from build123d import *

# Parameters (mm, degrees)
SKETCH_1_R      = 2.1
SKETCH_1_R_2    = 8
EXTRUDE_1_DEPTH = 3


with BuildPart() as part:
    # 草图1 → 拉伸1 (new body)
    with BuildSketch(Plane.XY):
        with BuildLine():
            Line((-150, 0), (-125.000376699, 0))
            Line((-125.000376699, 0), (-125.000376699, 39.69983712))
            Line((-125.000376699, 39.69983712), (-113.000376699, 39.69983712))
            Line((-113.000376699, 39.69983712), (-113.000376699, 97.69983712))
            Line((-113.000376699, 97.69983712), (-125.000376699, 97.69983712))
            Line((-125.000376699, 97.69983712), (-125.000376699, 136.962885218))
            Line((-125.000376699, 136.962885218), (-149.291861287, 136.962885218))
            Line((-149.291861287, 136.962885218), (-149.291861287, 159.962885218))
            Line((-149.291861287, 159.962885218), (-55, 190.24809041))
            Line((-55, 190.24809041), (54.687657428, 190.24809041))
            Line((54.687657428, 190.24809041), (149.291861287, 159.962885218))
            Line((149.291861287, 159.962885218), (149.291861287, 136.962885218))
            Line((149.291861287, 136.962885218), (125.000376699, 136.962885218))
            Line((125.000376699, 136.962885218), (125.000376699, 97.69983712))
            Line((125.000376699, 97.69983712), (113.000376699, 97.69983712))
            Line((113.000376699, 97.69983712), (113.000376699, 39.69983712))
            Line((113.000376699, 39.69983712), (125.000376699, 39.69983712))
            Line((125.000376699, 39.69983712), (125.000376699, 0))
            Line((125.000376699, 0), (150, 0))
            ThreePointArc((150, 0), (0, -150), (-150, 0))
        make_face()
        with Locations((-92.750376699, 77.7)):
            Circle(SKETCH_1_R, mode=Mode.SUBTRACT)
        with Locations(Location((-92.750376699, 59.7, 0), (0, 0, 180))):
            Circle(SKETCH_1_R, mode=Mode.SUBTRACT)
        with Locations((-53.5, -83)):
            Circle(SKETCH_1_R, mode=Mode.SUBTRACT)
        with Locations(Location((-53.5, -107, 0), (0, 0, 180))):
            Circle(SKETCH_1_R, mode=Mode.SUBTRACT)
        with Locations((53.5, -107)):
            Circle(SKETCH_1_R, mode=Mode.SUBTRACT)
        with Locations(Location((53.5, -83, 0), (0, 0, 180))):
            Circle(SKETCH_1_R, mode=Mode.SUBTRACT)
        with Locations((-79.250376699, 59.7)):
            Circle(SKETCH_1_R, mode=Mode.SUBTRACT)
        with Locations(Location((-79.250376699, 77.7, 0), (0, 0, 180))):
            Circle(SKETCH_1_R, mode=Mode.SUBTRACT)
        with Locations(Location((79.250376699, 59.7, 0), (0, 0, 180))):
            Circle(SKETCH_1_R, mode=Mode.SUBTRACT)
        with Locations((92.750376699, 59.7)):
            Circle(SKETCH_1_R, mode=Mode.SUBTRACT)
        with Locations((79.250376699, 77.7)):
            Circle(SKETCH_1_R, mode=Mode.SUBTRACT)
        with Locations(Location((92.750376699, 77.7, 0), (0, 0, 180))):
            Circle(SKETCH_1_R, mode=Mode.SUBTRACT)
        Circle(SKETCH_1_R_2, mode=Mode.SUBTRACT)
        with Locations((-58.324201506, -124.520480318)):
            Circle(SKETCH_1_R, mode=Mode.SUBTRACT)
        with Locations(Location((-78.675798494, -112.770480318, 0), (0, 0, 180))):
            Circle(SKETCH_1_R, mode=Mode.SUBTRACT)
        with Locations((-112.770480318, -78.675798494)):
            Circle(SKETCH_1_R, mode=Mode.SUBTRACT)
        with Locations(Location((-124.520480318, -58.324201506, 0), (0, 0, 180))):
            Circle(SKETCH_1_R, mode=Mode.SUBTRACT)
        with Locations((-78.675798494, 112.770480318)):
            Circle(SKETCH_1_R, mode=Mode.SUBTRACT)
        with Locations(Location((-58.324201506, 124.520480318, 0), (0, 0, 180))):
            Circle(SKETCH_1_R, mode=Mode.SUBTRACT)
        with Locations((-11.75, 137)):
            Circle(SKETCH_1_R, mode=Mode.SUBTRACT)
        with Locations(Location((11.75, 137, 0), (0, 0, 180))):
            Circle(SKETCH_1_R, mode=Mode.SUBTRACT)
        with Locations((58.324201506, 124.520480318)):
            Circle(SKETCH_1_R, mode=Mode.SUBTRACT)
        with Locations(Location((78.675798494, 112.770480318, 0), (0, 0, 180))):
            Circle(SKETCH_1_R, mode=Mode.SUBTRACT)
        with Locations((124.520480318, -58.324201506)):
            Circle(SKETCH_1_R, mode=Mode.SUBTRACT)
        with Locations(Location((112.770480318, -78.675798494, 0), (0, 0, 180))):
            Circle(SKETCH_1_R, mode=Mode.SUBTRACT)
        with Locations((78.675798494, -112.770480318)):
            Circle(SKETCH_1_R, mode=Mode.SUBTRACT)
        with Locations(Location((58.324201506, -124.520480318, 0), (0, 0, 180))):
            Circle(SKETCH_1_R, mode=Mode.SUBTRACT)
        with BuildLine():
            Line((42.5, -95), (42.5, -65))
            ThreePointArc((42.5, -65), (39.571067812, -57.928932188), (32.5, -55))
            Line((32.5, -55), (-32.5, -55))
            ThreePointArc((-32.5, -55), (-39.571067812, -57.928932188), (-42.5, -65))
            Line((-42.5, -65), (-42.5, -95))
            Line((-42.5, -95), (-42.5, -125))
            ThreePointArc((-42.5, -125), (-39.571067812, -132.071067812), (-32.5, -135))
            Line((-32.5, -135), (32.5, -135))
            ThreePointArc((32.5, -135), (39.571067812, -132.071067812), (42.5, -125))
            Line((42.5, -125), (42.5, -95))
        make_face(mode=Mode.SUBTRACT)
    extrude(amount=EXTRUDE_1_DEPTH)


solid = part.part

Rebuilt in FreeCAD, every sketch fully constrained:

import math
import FreeCAD as App
import Part
import Sketcher
from FreeCAD import Vector
Q = App.Units.Quantity

doc = App.newDocument("Part")
params = doc.addObject("Spreadsheet::Sheet", "Params")
for row, (alias, value) in enumerate([
    ("sketch1_diameter", "16 mm"),
    ("sketch1_radius", "150 mm"),
    ("sketch1_radius2", "10 mm"),
    ("sketch1_diameter2", "4.2 mm"),
    ("sketch1_width", "12 mm"),
    ("pad1_length", "3 mm"),
], start=1):
    params.set(f"A{row}", alias)
    params.set(f"B{row}", "=" + value)
    params.setAlias(f"B{row}", alias)

body = doc.addObject("PartDesign::Body", "Body")

# Sketch on XY plane
sketch1 = body.newObject("Sketcher::SketchObject", "Sketch")
sketch1.AttachmentSupport = (doc.getObject("XY_Plane"), [""])
sketch1.MapMode = "FlatFace"
sketch1.addGeometry(Part.LineSegment(Vector(-125, 0, 0), Vector(-150, 0, 0)), False)
sketch1.addGeometry(Part.ArcOfCircle(Part.Circle(Vector(0, 0, 0), Vector(0, 0, 1), 150), math.radians(180), math.radians(360)), False)
sketch1.addGeometry(Part.LineSegment(Vector(150, 0, 0), Vector(125, 0, 0)), False)
sketch1.addGeometry(Part.LineSegment(Vector(125, 0, 0), Vector(125, 39.7, 0)), False)
sketch1.addGeometry(Part.LineSegment(Vector(125, 39.7, 0), Vector(113, 39.7, 0)), False)
sketch1.addGeometry(Part.LineSegment(Vector(113, 39.7, 0), Vector(113, 97.7, 0)), False)
sketch1.addGeometry(Part.LineSegment(Vector(113, 97.7, 0), Vector(125, 97.7, 0)), False)
sketch1.addGeometry(Part.LineSegment(Vector(125, 97.7, 0), Vector(125, 137, 0)), False)
sketch1.addGeometry(Part.LineSegment(Vector(125, 137, 0), Vector(149.3, 137, 0)), False)
sketch1.addGeometry(Part.LineSegment(Vector(149.3, 137, 0), Vector(149.3, 160, 0)), False)
sketch1.addGeometry(Part.LineSegment(Vector(149.3, 160, 0), Vector(54.7, 190.2, 0)), False)
sketch1.addGeometry(Part.LineSegment(Vector(54.7, 190.2, 0), Vector(-55, 190.2, 0)), False)
sketch1.addGeometry(Part.LineSegment(Vector(-55, 190.2, 0), Vector(-149.3, 160, 0)), False)
sketch1.addGeometry(Part.LineSegment(Vector(-149.3, 160, 0), Vector(-149.3, 137, 0)), False)
sketch1.addGeometry(Part.LineSegment(Vector(-149.3, 137, 0), Vector(-125, 137, 0)), False)
sketch1.addGeometry(Part.LineSegment(Vector(-125, 137, 0), Vector(-125, 97.7, 0)), False)
sketch1.addGeometry(Part.LineSegment(Vector(-125, 97.7, 0), Vector(-113, 97.7, 0)), False)
sketch1.addGeometry(Part.LineSegment(Vector(-113, 97.7, 0), Vector(-113, 39.7, 0)), False)
sketch1.addGeometry(Part.LineSegment(Vector(-113, 39.7, 0), Vector(-125, 39.7, 0)), False)
sketch1.addGeometry(Part.LineSegment(Vector(-125, 39.7, 0), Vector(-125, 0, 0)), False)
sketch1.addGeometry(Part.Circle(Vector(78.7, -112.8, 0), Vector(0, 0, 1), 2.1), False)
sketch1.addGeometry(Part.Circle(Vector(112.8, -78.7, 0), Vector(0, 0, 1), 2.1), False)
sketch1.addGeometry(Part.Circle(Vector(58.3, -124.5, 0), Vector(0, 0, 1), 2.1), False)
sketch1.addGeometry(Part.Circle(Vector(53.5, -107, 0), Vector(0, 0, 1), 2.1), False)
sketch1.addGeometry(Part.Circle(Vector(53.5, -83, 0), Vector(0, 0, 1), 2.1), False)
sketch1.addGeometry(Part.Circle(Vector(124.5, -58.3, 0), Vector(0, 0, 1), 2.1), False)
sketch1.addGeometry(Part.Circle(Vector(-58.3, -124.5, 0), Vector(0, 0, 1), 2.1), False)
sketch1.addGeometry(Part.Circle(Vector(-53.5, -107, 0), Vector(0, 0, 1), 2.1), False)
sketch1.addGeometry(Part.LineSegment(Vector(42.5, -65, 0), Vector(42.5, -125, 0)), False)
sketch1.addGeometry(Part.ArcOfCircle(Part.Circle(Vector(32.5, -125, 0), Vector(0, 0, 1), 10), math.radians(-90), math.radians(0)), False)
sketch1.addGeometry(Part.LineSegment(Vector(32.5, -135, 0), Vector(-32.5, -135, 0)), False)
sketch1.addGeometry(Part.ArcOfCircle(Part.Circle(Vector(-32.5, -125, 0), Vector(0, 0, 1), 10), math.radians(180), math.radians(270)), False)
sketch1.addGeometry(Part.LineSegment(Vector(-42.5, -125, 0), Vector(-42.5, -65, 0)), False)
sketch1.addGeometry(Part.ArcOfCircle(Part.Circle(Vector(-32.5, -65, 0), Vector(0, 0, 1), 10), math.radians(90), math.radians(180)), False)
sketch1.addGeometry(Part.LineSegment(Vector(-32.5, -55, 0), Vector(32.5, -55, 0)), False)
sketch1.addGeometry(Part.ArcOfCircle(Part.Circle(Vector(32.5, -65, 0), Vector(0, 0, 1), 10), math.radians(0), math.radians(90)), False)
sketch1.addGeometry(Part.Circle(Vector(-53.5, -83, 0), Vector(0, 0, 1), 2.1), False)
sketch1.addGeometry(Part.Circle(Vector(-78.7, -112.8, 0), Vector(0, 0, 1), 2.1), False)
sketch1.addGeometry(Part.Circle(Vector(-112.8, -78.7, 0), Vector(0, 0, 1), 2.1), False)
sketch1.addGeometry(Part.Circle(Vector(0, 0, 0), Vector(0, 0, 1), 8), False)
sketch1.addGeometry(Part.Circle(Vector(-124.5, -58.3, 0), Vector(0, 0, 1), 2.1), False)
sketch1.addGeometry(Part.Circle(Vector(92.8, 59.7, 0), Vector(0, 0, 1), 2.1), False)
sketch1.addGeometry(Part.Circle(Vector(79.3, 59.7, 0), Vector(0, 0, 1), 2.1), False)
sketch1.addGeometry(Part.Circle(Vector(92.8, 77.7, 0), Vector(0, 0, 1), 2.1), False)
sketch1.addGeometry(Part.Circle(Vector(79.3, 77.7, 0), Vector(0, 0, 1), 2.1), False)
sketch1.addGeometry(Part.Circle(Vector(78.7, 112.8, 0), Vector(0, 0, 1), 2.1), False)
sketch1.addGeometry(Part.Circle(Vector(58.3, 124.5, 0), Vector(0, 0, 1), 2.1), False)
sketch1.addGeometry(Part.Circle(Vector(11.8, 137, 0), Vector(0, 0, 1), 2.1), False)
sketch1.addGeometry(Part.Circle(Vector(-79.3, 59.7, 0), Vector(0, 0, 1), 2.1), False)
sketch1.addGeometry(Part.Circle(Vector(-92.8, 59.7, 0), Vector(0, 0, 1), 2.1), False)
sketch1.addGeometry(Part.Circle(Vector(-11.8, 137, 0), Vector(0, 0, 1), 2.1), False)
sketch1.addGeometry(Part.Circle(Vector(-58.3, 124.5, 0), Vector(0, 0, 1), 2.1), False)
sketch1.addGeometry(Part.Circle(Vector(-79.3, 77.7, 0), Vector(0, 0, 1), 2.1), False)
sketch1.addGeometry(Part.Circle(Vector(-92.8, 77.7, 0), Vector(0, 0, 1), 2.1), False)
sketch1.addGeometry(Part.Circle(Vector(-78.7, 112.8, 0), Vector(0, 0, 1), 2.1), False)
sketch1.addConstraint(Sketcher.Constraint("Coincident", 0, 2, 1, 1))
sketch1.addConstraint(Sketcher.Constraint("Coincident", 1, 2, 2, 1))
sketch1.addConstraint(Sketcher.Constraint("Coincident", 2, 2, 3, 1))
sketch1.addConstraint(Sketcher.Constraint("Coincident", 3, 2, 4, 1))
sketch1.addConstraint(Sketcher.Constraint("Coincident", 4, 2, 5, 1))
sketch1.addConstraint(Sketcher.Constraint("Coincident", 5, 2, 6, 1))
sketch1.addConstraint(Sketcher.Constraint("Coincident", 6, 2, 7, 1))
sketch1.addConstraint(Sketcher.Constraint("Coincident", 7, 2, 8, 1))
sketch1.addConstraint(Sketcher.Constraint("Coincident", 8, 2, 9, 1))
sketch1.addConstraint(Sketcher.Constraint("Coincident", 9, 2, 10, 1))
sketch1.addConstraint(Sketcher.Constraint("Coincident", 10, 2, 11, 1))
sketch1.addConstraint(Sketcher.Constraint("Coincident", 11, 2, 12, 1))
sketch1.addConstraint(Sketcher.Constraint("Coincident", 12, 2, 13, 1))
sketch1.addConstraint(Sketcher.Constraint("Coincident", 13, 2, 14, 1))
sketch1.addConstraint(Sketcher.Constraint("Coincident", 14, 2, 15, 1))
sketch1.addConstraint(Sketcher.Constraint("Coincident", 15, 2, 16, 1))
sketch1.addConstraint(Sketcher.Constraint("Coincident", 16, 2, 17, 1))
sketch1.addConstraint(Sketcher.Constraint("Coincident", 17, 2, 18, 1))
sketch1.addConstraint(Sketcher.Constraint("Coincident", 18, 2, 19, 1))
sketch1.addConstraint(Sketcher.Constraint("Coincident", 19, 2, 0, 1))
sketch1.addConstraint(Sketcher.Constraint("Tangent", 28, 2, 29, 2))
sketch1.addConstraint(Sketcher.Constraint("Tangent", 29, 1, 30, 1))
sketch1.addConstraint(Sketcher.Constraint("Tangent", 30, 2, 31, 2))
sketch1.addConstraint(Sketcher.Constraint("Tangent", 31, 1, 32, 1))
sketch1.addConstraint(Sketcher.Constraint("Tangent", 32, 2, 33, 2))
sketch1.addConstraint(Sketcher.Constraint("Tangent", 33, 1, 34, 1))
sketch1.addConstraint(Sketcher.Constraint("Tangent", 34, 2, 35, 2))
sketch1.addConstraint(Sketcher.Constraint("Tangent", 35, 1, 28, 1))
sketch1.addConstraint(Sketcher.Constraint("Horizontal", 0))
sketch1.addConstraint(Sketcher.Constraint("Horizontal", 2))
sketch1.addConstraint(Sketcher.Constraint("Vertical", 3))
sketch1.addConstraint(Sketcher.Constraint("Horizontal", 4))
sketch1.addConstraint(Sketcher.Constraint("Vertical", 5))
sketch1.addConstraint(Sketcher.Constraint("Horizontal", 6))
sketch1.addConstraint(Sketcher.Constraint("Vertical", 7))
sketch1.addConstraint(Sketcher.Constraint("Horizontal", 8))
sketch1.addConstraint(Sketcher.Constraint("Vertical", 9))
sketch1.addConstraint(Sketcher.Constraint("Horizontal", 11))
sketch1.addConstraint(Sketcher.Constraint("Vertical", 13))
sketch1.addConstraint(Sketcher.Constraint("Horizontal", 14))
sketch1.addConstraint(Sketcher.Constraint("Vertical", 15))
sketch1.addConstraint(Sketcher.Constraint("Horizontal", 16))
sketch1.addConstraint(Sketcher.Constraint("Vertical", 17))
sketch1.addConstraint(Sketcher.Constraint("Horizontal", 18))
sketch1.addConstraint(Sketcher.Constraint("Vertical", 19))
sketch1.addConstraint(Sketcher.Constraint("Vertical", 28))
sketch1.addConstraint(Sketcher.Constraint("Horizontal", 30))
sketch1.addConstraint(Sketcher.Constraint("Vertical", 32))
sketch1.addConstraint(Sketcher.Constraint("Horizontal", 34))
sketch1.addConstraint(Sketcher.Constraint("Coincident", 1, 3, -1, 1))
sketch1.addConstraint(Sketcher.Constraint("Coincident", 39, 3, -1, 1))
sketch1.addConstraint(Sketcher.Constraint("Equal", 20, 21))
sketch1.addConstraint(Sketcher.Constraint("Equal", 21, 22))
sketch1.addConstraint(Sketcher.Constraint("Equal", 22, 23))
sketch1.addConstraint(Sketcher.Constraint("Equal", 23, 24))
sketch1.addConstraint(Sketcher.Constraint("Equal", 24, 25))
sketch1.addConstraint(Sketcher.Constraint("Equal", 25, 26))
sketch1.addConstraint(Sketcher.Constraint("Equal", 26, 27))
sketch1.addConstraint(Sketcher.Constraint("Equal", 29, 31))
sketch1.addConstraint(Sketcher.Constraint("Equal", 31, 33))
sketch1.addConstraint(Sketcher.Constraint("Equal", 33, 35))
sketch1.addConstraint(Sketcher.Constraint("Equal", 27, 36))
sketch1.addConstraint(Sketcher.Constraint("Equal", 36, 37))
sketch1.addConstraint(Sketcher.Constraint("Equal", 37, 38))
sketch1.addConstraint(Sketcher.Constraint("Equal", 38, 40))
sketch1.addConstraint(Sketcher.Constraint("Equal", 40, 41))
sketch1.addConstraint(Sketcher.Constraint("Equal", 41, 42))
sketch1.addConstraint(Sketcher.Constraint("Equal", 42, 43))
sketch1.addConstraint(Sketcher.Constraint("Equal", 43, 44))
sketch1.addConstraint(Sketcher.Constraint("Equal", 44, 45))
sketch1.addConstraint(Sketcher.Constraint("Equal", 45, 46))
sketch1.addConstraint(Sketcher.Constraint("Equal", 46, 47))
sketch1.addConstraint(Sketcher.Constraint("Equal", 47, 48))
sketch1.addConstraint(Sketcher.Constraint("Equal", 48, 49))
sketch1.addConstraint(Sketcher.Constraint("Equal", 49, 50))
sketch1.addConstraint(Sketcher.Constraint("Equal", 50, 51))
sketch1.addConstraint(Sketcher.Constraint("Equal", 51, 52))
sketch1.addConstraint(Sketcher.Constraint("Equal", 52, 53))
sketch1.addConstraint(Sketcher.Constraint("Equal", 53, 54))
sketch1.addConstraint(Sketcher.Constraint("Symmetric", 37, 3, 45, 3, -1, 1))
sketch1.addConstraint(Sketcher.Constraint("Symmetric", 26, 3, 46, 3, -1, 1))
sketch1.addConstraint(Sketcher.Constraint("Symmetric", 22, 3, 51, 3, -1, 1))
sketch1.addConstraint(Sketcher.Constraint("Symmetric", 20, 3, 54, 3, -1, 1))
sketch1.addConstraint(Sketcher.Constraint("Symmetric", 2, 2, 19, 2, -1, 1))
sketch1.addConstraint(Sketcher.Constraint("Symmetric", 22, 3, 26, 3, -2))
sketch1.addConstraint(Sketcher.Constraint("Symmetric", 23, 3, 27, 3, -2))
sketch1.addConstraint(Sketcher.Constraint("Symmetric", 24, 3, 36, 3, -2))
sketch1.addConstraint(Sketcher.Constraint("Symmetric", 20, 3, 37, 3, -2))
sketch1.addConstraint(Sketcher.Constraint("Symmetric", 21, 3, 38, 3, -2))
sketch1.addConstraint(Sketcher.Constraint("Symmetric", 25, 3, 40, 3, -2))
sketch1.addConstraint(Sketcher.Constraint("Symmetric", 42, 3, 48, 3, -2))
sketch1.addConstraint(Sketcher.Constraint("Symmetric", 41, 3, 49, 3, -2))
sketch1.addConstraint(Sketcher.Constraint("Symmetric", 47, 3, 50, 3, -2))
sketch1.addConstraint(Sketcher.Constraint("Symmetric", 44, 3, 52, 3, -2))
sketch1.addConstraint(Sketcher.Constraint("Symmetric", 43, 3, 53, 3, -2))
sketch1.addConstraint(Sketcher.Constraint("Symmetric", 9, 2, 12, 2, -2))
sketch1.addConstraint(Sketcher.Constraint("Symmetric", 7, 2, 14, 2, -2))
sketch1.addConstraint(Sketcher.Constraint("Symmetric", 5, 2, 16, 2, -2))
sketch1.addConstraint(Sketcher.Constraint("PointOnObject", 0, 2, -1))
sketch1.addConstraint(Sketcher.Constraint("Horizontal", 41, 3, 42, 3))
sketch1.addConstraint(Sketcher.Constraint("Horizontal", 43, 3, 44, 3))
sketch1.addConstraint(Sketcher.Constraint("Horizontal", 4, 2, 17, 2))
sketch1.addConstraint(Sketcher.Constraint("Vertical", 23, 3, 24, 3))
sketch1.addConstraint(Sketcher.Constraint("Vertical", 41, 3, 43, 3))
sketch1.addConstraint(Sketcher.Constraint("Vertical", 42, 3, 44, 3))
sketch1.addConstraint(Sketcher.Constraint("Vertical", 3, 2, 6, 2))
sketch1.addConstraint(Sketcher.Constraint("Diameter", 39, Q("16 mm")))
sketch1.addConstraint(Sketcher.Constraint("Radius", 1, Q("150 mm")))
sketch1.addConstraint(Sketcher.Constraint("Radius", 29, Q("10 mm")))
sketch1.addConstraint(Sketcher.Constraint("Diameter", 20, Q("4.2 mm")))
sketch1.addConstraint(Sketcher.Constraint("DistanceX", 4, 2, 4, 1, Q("12 mm")))
sketch1.addConstraint(Sketcher.Constraint("DistanceX", 30, 2, 30, 1, Q("65 mm")))
sketch1.addConstraint(Sketcher.Constraint("DistanceY", 5, 1, 5, 2, Q("58 mm")))
sketch1.addConstraint(Sketcher.Constraint("DistanceY", 9, 1, 9, 2, Q("23 mm")))
sketch1.addConstraint(Sketcher.Constraint("DistanceY", 28, 2, 28, 1, Q("60 mm")))
sketch1.addConstraint(Sketcher.Constraint("DistanceY", 23, 3, -1, 1, Q("107 mm")))
sketch1.addConstraint(Sketcher.Constraint("DistanceY", 24, 3, -1, 1, Q("83 mm")))
sketch1.addConstraint(Sketcher.Constraint("DistanceY", 29, 3, -1, 1, Q("125 mm")))
sketch1.addConstraint(Sketcher.Constraint("DistanceY", -1, 1, 47, 3, Q("137 mm")))
sketch1.addConstraint(Sketcher.Constraint("DistanceX", 11, 2, -1, 1, Q("55 mm")))
sketch1.addConstraint(Sketcher.Constraint("DistanceX", 26, 3, 20, 3, Q("137 mm")))
sketch1.addConstraint(Sketcher.Constraint("DistanceX", 27, 3, 23, 3, Q("107 mm")))
sketch1.addConstraint(Sketcher.Constraint("DistanceX", 29, 3, 23, 3, Q("21 mm")))
sketch1.addConstraint(Sketcher.Constraint("DistanceY", 41, 3, 43, 3, Q("18 mm")))
sketch1.addConstraint(Sketcher.Constraint("DistanceY", -1, 1, 41, 3, Q("59.7 mm")))
sketch1.addConstraint(Sketcher.Constraint("DistanceX", 42, 3, 41, 3, Q("13.5 mm")))
sketch1.addConstraint(Sketcher.Constraint("DistanceX", 50, 3, 47, 3, Q("23.5 mm")))
sketch1.addConstraint(Sketcher.Constraint("DistanceY", 22, 3, 20, 3, Q("11.75 mm")))
sketch1.addConstraint(Sketcher.Constraint("DistanceX", 21, 3, 25, 3, Q("11.75 mm")))
sketch1.addConstraint(Sketcher.Constraint("DistanceX", 41, 3, 2, 2, Q("32.25 mm")))
sketch1.addConstraint(Sketcher.Constraint("Distance", 12, Q("99.036098 mm")))
sketch1.addConstraint(Sketcher.Constraint("DistanceY", 7, 1, 7, 2, Q("39.263048 mm")))
sketch1.addConstraint(Sketcher.Constraint("DistanceX", -1, 1, 20, 3, Q("78.675798 mm")))
sketch1.addConstraint(Sketcher.Constraint("DistanceY", 21, 3, -1, 1, Q("78.675798 mm")))
sketch1.addConstraint(Sketcher.Constraint("DistanceY", 25, 3, -1, 1, Q("58.324202 mm")))
sketch1.addConstraint(Sketcher.Constraint("DistanceX", 0, 2, 0, 1, Q("24.999623 mm")))
sketch1.addConstraint(Sketcher.Constraint("DistanceX", 8, 1, 8, 2, Q("24.291485 mm")))
sketch1.addConstraint(Sketcher.Constraint("DistanceX", 11, 2, 11, 1, Q("109.687657 mm")))
sketch1.addConstraint(Sketcher.Constraint("DistanceY", 3, 1, 3, 2, Q("39.699837 mm")))
sketch1.addConstraint(Sketcher.Constraint("DistanceY", 20, 3, -1, 1, Q("112.77048 mm")))
sketch1.addConstraint(Sketcher.Constraint("DistanceX", -1, 1, 21, 3, Q("112.77048 mm")))
sketch1.setExpression("Constraints[106]", "Params.sketch1_diameter")
sketch1.setExpression("Constraints[107]", "Params.sketch1_radius")
sketch1.setExpression("Constraints[108]", "Params.sketch1_radius2")
sketch1.setExpression("Constraints[109]", "Params.sketch1_diameter2")
sketch1.setExpression("Constraints[110]", "Params.sketch1_width")
pad1 = body.newObject("PartDesign::Pad", "Pad")
pad1.Profile = sketch1
pad1.setExpression("Length", "Params.pad1_length")

doc.recompute()
